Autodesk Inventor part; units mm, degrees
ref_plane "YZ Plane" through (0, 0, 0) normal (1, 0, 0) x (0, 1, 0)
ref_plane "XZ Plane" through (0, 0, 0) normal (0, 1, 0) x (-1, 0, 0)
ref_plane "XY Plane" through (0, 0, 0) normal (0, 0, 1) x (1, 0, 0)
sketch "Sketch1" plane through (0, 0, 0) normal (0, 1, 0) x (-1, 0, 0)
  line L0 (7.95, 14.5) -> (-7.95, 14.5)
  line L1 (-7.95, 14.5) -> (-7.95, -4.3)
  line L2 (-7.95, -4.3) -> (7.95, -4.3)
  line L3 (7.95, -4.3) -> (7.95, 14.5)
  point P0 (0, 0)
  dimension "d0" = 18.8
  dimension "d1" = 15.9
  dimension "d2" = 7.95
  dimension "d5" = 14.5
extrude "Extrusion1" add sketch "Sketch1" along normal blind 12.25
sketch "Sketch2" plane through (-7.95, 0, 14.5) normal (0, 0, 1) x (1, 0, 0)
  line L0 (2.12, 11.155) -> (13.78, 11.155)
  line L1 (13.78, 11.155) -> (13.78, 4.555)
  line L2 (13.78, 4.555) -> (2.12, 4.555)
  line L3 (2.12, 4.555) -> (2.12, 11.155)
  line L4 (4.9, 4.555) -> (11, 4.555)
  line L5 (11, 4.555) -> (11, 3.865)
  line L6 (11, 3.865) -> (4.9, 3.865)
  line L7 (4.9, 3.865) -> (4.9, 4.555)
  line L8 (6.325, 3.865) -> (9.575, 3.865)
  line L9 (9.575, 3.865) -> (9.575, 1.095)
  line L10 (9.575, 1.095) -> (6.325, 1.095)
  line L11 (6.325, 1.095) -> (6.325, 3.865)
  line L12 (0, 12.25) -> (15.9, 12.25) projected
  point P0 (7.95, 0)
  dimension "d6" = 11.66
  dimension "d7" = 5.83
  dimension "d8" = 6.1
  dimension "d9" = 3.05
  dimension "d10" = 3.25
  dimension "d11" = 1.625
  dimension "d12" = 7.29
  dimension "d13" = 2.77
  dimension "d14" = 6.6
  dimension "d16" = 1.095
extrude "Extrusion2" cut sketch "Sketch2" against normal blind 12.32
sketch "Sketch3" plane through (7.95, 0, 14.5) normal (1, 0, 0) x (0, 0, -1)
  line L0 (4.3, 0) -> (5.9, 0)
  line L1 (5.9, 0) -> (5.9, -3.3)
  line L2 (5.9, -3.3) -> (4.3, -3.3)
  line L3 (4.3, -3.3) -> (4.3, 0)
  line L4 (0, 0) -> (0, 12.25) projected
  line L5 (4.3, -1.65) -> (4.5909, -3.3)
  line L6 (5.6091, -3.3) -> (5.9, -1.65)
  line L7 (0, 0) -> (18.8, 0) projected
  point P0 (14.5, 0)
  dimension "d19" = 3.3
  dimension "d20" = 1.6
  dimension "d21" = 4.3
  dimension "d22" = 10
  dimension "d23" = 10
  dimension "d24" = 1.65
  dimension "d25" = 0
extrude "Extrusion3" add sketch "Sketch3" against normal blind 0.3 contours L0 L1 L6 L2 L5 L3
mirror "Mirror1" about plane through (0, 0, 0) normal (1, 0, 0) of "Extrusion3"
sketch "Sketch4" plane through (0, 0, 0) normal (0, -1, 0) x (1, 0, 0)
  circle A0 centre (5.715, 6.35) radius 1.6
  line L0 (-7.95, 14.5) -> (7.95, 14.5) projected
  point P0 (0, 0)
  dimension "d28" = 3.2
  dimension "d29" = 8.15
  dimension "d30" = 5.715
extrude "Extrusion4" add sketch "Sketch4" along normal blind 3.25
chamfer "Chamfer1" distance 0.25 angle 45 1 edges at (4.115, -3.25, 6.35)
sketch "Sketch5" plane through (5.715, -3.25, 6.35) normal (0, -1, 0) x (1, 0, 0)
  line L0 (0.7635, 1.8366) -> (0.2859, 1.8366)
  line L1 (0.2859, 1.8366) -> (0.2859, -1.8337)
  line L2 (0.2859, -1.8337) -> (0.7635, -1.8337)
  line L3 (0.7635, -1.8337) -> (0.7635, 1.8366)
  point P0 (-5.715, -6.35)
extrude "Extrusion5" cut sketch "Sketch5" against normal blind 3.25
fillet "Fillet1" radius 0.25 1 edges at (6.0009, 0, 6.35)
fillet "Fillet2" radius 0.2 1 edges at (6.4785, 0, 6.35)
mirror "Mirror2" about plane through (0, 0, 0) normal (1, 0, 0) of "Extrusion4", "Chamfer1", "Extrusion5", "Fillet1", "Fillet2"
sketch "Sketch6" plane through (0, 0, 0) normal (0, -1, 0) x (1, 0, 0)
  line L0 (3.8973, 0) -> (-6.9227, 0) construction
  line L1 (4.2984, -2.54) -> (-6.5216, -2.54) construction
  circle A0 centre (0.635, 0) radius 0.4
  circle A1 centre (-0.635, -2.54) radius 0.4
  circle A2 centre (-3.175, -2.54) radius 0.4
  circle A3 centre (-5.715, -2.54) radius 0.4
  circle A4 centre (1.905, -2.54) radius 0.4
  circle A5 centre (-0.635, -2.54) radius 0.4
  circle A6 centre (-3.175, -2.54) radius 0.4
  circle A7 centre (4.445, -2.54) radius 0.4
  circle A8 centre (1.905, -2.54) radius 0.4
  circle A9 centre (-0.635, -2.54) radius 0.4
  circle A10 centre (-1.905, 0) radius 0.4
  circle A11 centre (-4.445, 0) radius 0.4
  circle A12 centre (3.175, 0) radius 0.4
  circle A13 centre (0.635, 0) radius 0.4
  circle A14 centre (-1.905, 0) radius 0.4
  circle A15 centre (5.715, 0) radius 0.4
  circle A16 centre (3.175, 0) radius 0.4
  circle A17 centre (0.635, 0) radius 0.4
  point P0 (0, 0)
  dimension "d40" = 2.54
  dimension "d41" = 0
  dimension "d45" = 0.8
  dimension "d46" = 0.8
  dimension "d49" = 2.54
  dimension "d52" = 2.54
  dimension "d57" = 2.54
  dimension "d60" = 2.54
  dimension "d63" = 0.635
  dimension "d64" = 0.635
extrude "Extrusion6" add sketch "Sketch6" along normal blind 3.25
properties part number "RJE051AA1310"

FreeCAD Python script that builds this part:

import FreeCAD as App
import Part
import Sketcher


def edges_at(feature, points):
    """Names of the edges that pass closest to the given points."""
    edges = feature.Shape.Edges
    near = lambda p: min(range(len(edges)), key=lambda i: edges[i].distToShape(Part.Vertex(*p))[0])
    return sorted({f"Edge{near(p) + 1}" for p in points})


def add_polygon(sketch, points):
    """Adds a closed chain of lines whose ends are joined by coincident constraints."""
    first, n = sketch.GeometryCount, len(points)
    for a, b in zip(points, points[1:] + points[:1]):
        sketch.addGeometry(Part.LineSegment(App.Vector(*a, 0), App.Vector(*b, 0)), False)
    for i in range(n):
        sketch.addConstraint(Sketcher.Constraint("Coincident", first + i, 2, first + (i + 1) % n, 1))

doc = App.newDocument("Part")
body = doc.addObject("PartDesign::Body", "Body")

# Sketch on XZ plane
sketch1 = body.newObject("Sketcher::SketchObject", "Sketch")
sketch1.AttachmentSupport = (doc.getObject("XZ_Plane"), [""])
sketch1.MapMode = "FlatFace"
add_polygon(sketch1, [(-8, -4), (-8, 14), (8, 14), (8, -4)])  # lines 0-3
sketch1.addConstraint(Sketcher.Constraint("Vertical", 0))
sketch1.addConstraint(Sketcher.Constraint("Horizontal", 1))
sketch1.addConstraint(Sketcher.Constraint("Vertical", 2))
sketch1.addConstraint(Sketcher.Constraint("Horizontal", 3))
sketch1.addConstraint(Sketcher.Constraint("DistanceX", 1, 1, 1, 2, 15.9))
sketch1.addConstraint(Sketcher.Constraint("DistanceY", 0, 1, 0, 2, 18.8))
sketch1.addConstraint(Sketcher.Constraint("DistanceY", -1, 1, 0, 2, 14.5))
sketch1.addConstraint(Sketcher.Constraint("DistanceX", 0, 2, -1, 1, 7.95))
pad1 = body.newObject("PartDesign::Pad", "Pad")
pad1.Profile = sketch1
pad1.Length = 12.25
pad1.Reversed = True

# Sketch on XY plane
sketch2 = body.newObject("Sketcher::SketchObject", "Sketch001")
sketch2.AttachmentSupport = (doc.getObject("XY_Plane"), [""])
sketch2.MapMode = "FlatFace"
sketch2.AttachmentOffset = App.Placement(App.Vector(0, 0, 14.5), App.Rotation())
add_polygon(sketch2, [(5.8, 11.2), (-5.8, 11.2), (-5.8, 4.6), (-3, 4.6), (-3, 3.9), (-1.6, 3.9), (-1.6, 1.1), (1.6, 1.1), (1.6, 3.9), (3, 3.9), (3, 4.6), (5.8, 4.6)])  # lines 0-11
sketch2.addConstraint(Sketcher.Constraint("Horizontal", 0))
sketch2.addConstraint(Sketcher.Constraint("Vertical", 1))
sketch2.addConstraint(Sketcher.Constraint("Horizontal", 2))
sketch2.addConstraint(Sketcher.Constraint("Vertical", 3))
sketch2.addConstraint(Sketcher.Constraint("Horizontal", 4))
sketch2.addConstraint(Sketcher.Constraint("Vertical", 5))
sketch2.addConstraint(Sketcher.Constraint("Horizontal", 6))
sketch2.addConstraint(Sketcher.Constraint("Vertical", 7))
sketch2.addConstraint(Sketcher.Constraint("Horizontal", 8))
sketch2.addConstraint(Sketcher.Constraint("Vertical", 9))
sketch2.addConstraint(Sketcher.Constraint("Horizontal", 10))
sketch2.addConstraint(Sketcher.Constraint("Vertical", 11))
sketch2.addConstraint(Sketcher.Constraint("Symmetric", 4, 2, 7, 2, -2))
sketch2.addConstraint(Sketcher.Constraint("Symmetric", 2, 2, 9, 2, -2))
sketch2.addConstraint(Sketcher.Constraint("Equal", 2, 10))
sketch2.addConstraint(Sketcher.Constraint("DistanceY", 1, 2, 1, 1, 6.6))
sketch2.addConstraint(Sketcher.Constraint("DistanceX", 0, 2, 0, 1, 11.66))
sketch2.addConstraint(Sketcher.Constraint("DistanceX", 6, 1, 6, 2, 3.25))
sketch2.addConstraint(Sketcher.Constraint("DistanceY", 5, 2, 5, 1, 2.77))
sketch2.addConstraint(Sketcher.Constraint("DistanceX", 3, 2, 8, 2, 6.1))
sketch2.addConstraint(Sketcher.Constraint("DistanceY", 3, 2, 0, 2, 7.29))
sketch2.addConstraint(Sketcher.Constraint("DistanceY", -1, 1, 5, 2, 1.095))
pocket1 = body.newObject("PartDesign::Pocket", "Pocket")
pocket1.Profile = sketch2
pocket1.Length = 12.32

# Sketch on YZ plane
sketch3 = body.newObject("Sketcher::SketchObject", "Sketch002")
sketch3.AttachmentSupport = (doc.getObject("YZ_Plane"), [""])
sketch3.MapMode = "FlatFace"
sketch3.AttachmentOffset = App.Placement(App.Vector(0, 0, 7.95), App.Rotation())
add_polygon(sketch3, [(0, 8.6), (0, 10.2), (-1.6, 10.2), (-3.3, 9.9), (-3.3, 8.9), (-1.6, 8.6)])  # lines 0-5
sketch3.addConstraint(Sketcher.Constraint("Vertical", 0))
sketch3.addConstraint(Sketcher.Constraint("Horizontal", 1))
sketch3.addConstraint(Sketcher.Constraint("Vertical", 3))
sketch3.addConstraint(Sketcher.Constraint("Horizontal", 5))
sketch3.addConstraint(Sketcher.Constraint("PointOnObject", 0, 2, -2))
sketch3.addConstraint(Sketcher.Constraint("Vertical", 1, 2, 4, 2))
sketch3.addConstraint(Sketcher.Constraint("Equal", 2, 4))
sketch3.addConstraint(Sketcher.Constraint("DistanceY", 0, 1, 0, 2, 1.6))
sketch3.addConstraint(Sketcher.Constraint("DistanceX", 1, 2, 1, 1, 1.65))
sketch3.addConstraint(Sketcher.Constraint("DistanceX", 2, 2, -1, 1, 3.3))
sketch3.addConstraint(Sketcher.Constraint("DistanceY", -1, 1, 0, 2, 10.2))
sketch3.addConstraint(Sketcher.Constraint("DistanceY", 3, 2, 3, 1, 1.0182))
pad2 = body.newObject("PartDesign::Pad", "Pad001")
pad2.Profile = sketch3
pad2.Length = 0.3
pad2.Reversed = True
doc.recompute()

mirrored = body.newObject("PartDesign::Mirrored", "Mirrored")
mirrored.Originals = [pad2]
mirrored.MirrorPlane = (doc.getObject("YZ_Plane"), [""])
body.Tip = mirrored

# Sketch on XZ plane
sketch4 = body.newObject("Sketcher::SketchObject", "Sketch003")
sketch4.AttachmentSupport = (doc.getObject("XZ_Plane"), [""])
sketch4.MapMode = "FlatFace"
sketch4.addGeometry(Part.Circle(App.Vector(5.7, 6.3, 0), App.Vector(0, 0, 1), 1.6), False)
sketch4.addConstraint(Sketcher.Constraint("Diameter", 0, 3.2))
sketch4.addConstraint(Sketcher.Constraint("DistanceX", -1, 1, 0, 3, 5.715))
sketch4.addConstraint(Sketcher.Constraint("DistanceY", -1, 1, 0, 3, 6.35))
pad3 = body.newObject("PartDesign::Pad", "Pad002")
pad3.Profile = sketch4
pad3.Length = 3.25
doc.recompute()

chamfer = body.newObject("PartDesign::Chamfer", "Chamfer")
chamfer.Base = (pad3, edges_at(pad3, [(4.115, -3.25, 6.35)]))
chamfer.Size = 0.25

# Sketch on XZ plane
sketch5 = body.newObject("Sketcher::SketchObject", "Sketch004")
sketch5.AttachmentSupport = (doc.getObject("XZ_Plane"), [""])
sketch5.MapMode = "FlatFace"
sketch5.AttachmentOffset = App.Placement(App.Vector(0, 0, 3.25), App.Rotation())
add_polygon(sketch5, [(6.48, 4.52), (6.48, 8.19), (6, 8.19), (6, 4.52)])  # lines 0-3
sketch5.addConstraint(Sketcher.Constraint("Vertical", 0))
sketch5.addConstraint(Sketcher.Constraint("Horizontal", 1))
sketch5.addConstraint(Sketcher.Constraint("Vertical", 2))
sketch5.addConstraint(Sketcher.Constraint("Horizontal", 3))
sketch5.addConstraint(Sketcher.Constraint("DistanceX", 1, 2, 1, 1, 0.4776))
sketch5.addConstraint(Sketcher.Constraint("DistanceY", 0, 1, 0, 2, 3.6703))
sketch5.addConstraint(Sketcher.Constraint("DistanceX", -1, 1, 1, 2, 6.001))
sketch5.addConstraint(Sketcher.Constraint("DistanceY", -1, 1, 0, 2, 8.1866))
pocket2 = body.newObject("PartDesign::Pocket", "Pocket001")
pocket2.Profile = sketch5
pocket2.Length = 3.25
doc.recompute()

fillet = body.newObject("PartDesign::Fillet", "Fillet")
fillet.Base = (pocket2, edges_at(pocket2, [(6.001, 0, 6.35)]))
fillet.Radius = 0.25
doc.recompute()

fillet2 = body.newObject("PartDesign::Fillet", "Fillet001")
fillet2.Base = (fillet, edges_at(fillet, [(6.479, 0, 6.35)]))
fillet2.Radius = 0.2
doc.recompute()

mirrored2 = body.newObject("PartDesign::Mirrored", "Mirrored001")
mirrored2.Originals = [pad3, chamfer, pocket2, fillet, fillet2]
mirrored2.MirrorPlane = (doc.getObject("YZ_Plane"), [""])
body.Tip = mirrored2

# Sketch on XZ plane
sketch6 = body.newObject("Sketcher::SketchObject", "Sketch005")
sketch6.AttachmentSupport = (doc.getObject("XZ_Plane"), [""])
sketch6.MapMode = "FlatFace"
sketch6.addGeometry(Part.Circle(App.Vector(0.64, 0, 0), App.Vector(0, 0, 1), 0.4), False)
sketch6.addGeometry(Part.Circle(App.Vector(-0.64, -2.54, 0), App.Vector(0, 0, 1), 0.4), False)
sketch6.addGeometry(Part.Circle(App.Vector(-3.17, -2.54, 0), App.Vector(0, 0, 1), 0.4), False)
sketch6.addGeometry(Part.Circle(App.Vector(-5.71, -2.54, 0), App.Vector(0, 0, 1), 0.4), False)
sketch6.addGeometry(Part.Circle(App.Vector(1.91, -2.54, 0), App.Vector(0, 0, 1), 0.4), False)
sketch6.addGeometry(Part.Circle(App.Vector(4.45, -2.54, 0), App.Vector(0, 0, 1), 0.4), False)
sketch6.addGeometry(Part.Circle(App.Vector(-1.91, 0, 0), App.Vector(0, 0, 1), 0.4), False)
sketch6.addGeometry(Part.Circle(App.Vector(-4.45, 0, 0), App.Vector(0, 0, 1), 0.4), False)
sketch6.addGeometry(Part.Circle(App.Vector(3.17, 0, 0), App.Vector(0, 0, 1), 0.4), False)
sketch6.addGeometry(Part.Circle(App.Vector(5.71, 0, 0), App.Vector(0, 0, 1), 0.4), False)
sketch6.addConstraint(Sketcher.Constraint("Equal", 0, 1))
sketch6.addConstraint(Sketcher.Constraint("Equal", 1, 2))
sketch6.addConstraint(Sketcher.Constraint("Equal", 2, 3))
sketch6.addConstraint(Sketcher.Constraint("Equal", 3, 4))
sketch6.addConstraint(Sketcher.Constraint("Equal", 4, 5))
sketch6.addConstraint(Sketcher.Constraint("Equal", 5, 6))
sketch6.addConstraint(Sketcher.Constraint("Equal", 6, 7))
sketch6.addConstraint(Sketcher.Constraint("Equal", 7, 8))
sketch6.addConstraint(Sketcher.Constraint("Equal", 8, 9))
sketch6.addConstraint(Sketcher.Constraint("PointOnObject", 0, 3, -1))
sketch6.addConstraint(Sketcher.Constraint("PointOnObject", 6, 3, -1))
sketch6.addConstraint(Sketcher.Constraint("PointOnObject", 7, 3, -1))
sketch6.addConstraint(Sketcher.Constraint("PointOnObject", 8, 3, -1))
sketch6.addConstraint(Sketcher.Constraint("PointOnObject", 9, 3, -1))
sketch6.addConstraint(Sketcher.Constraint("Horizontal", 1, 3, 2, 3))
sketch6.addConstraint(Sketcher.Constraint("Horizontal", 2, 3, 3, 3))
sketch6.addConstraint(Sketcher.Constraint("Horizontal", 3, 3, 4, 3))
sketch6.addConstraint(Sketcher.Constraint("Horizontal", 4, 3, 5, 3))
sketch6.addConstraint(Sketcher.Constraint("Diameter", 0, 0.8))
sketch6.addConstraint(Sketcher.Constraint("DistanceY", 1, 3, -1, 1, 2.54))
sketch6.addConstraint(Sketcher.Constraint("DistanceX", 2, 3, 1, 3, 2.54))
sketch6.addConstraint(Sketcher.Constraint("DistanceX", 3, 3, 2, 3, 2.54))
sketch6.addConstraint(Sketcher.Constraint("DistanceX", 1, 3, 4, 3, 2.54))
sketch6.addConstraint(Sketcher.Constraint("DistanceX", 4, 3, 5, 3, 2.54))
sketch6.addConstraint(Sketcher.Constraint("DistanceX", 6, 3, 0, 3, 2.54))
sketch6.addConstraint(Sketcher.Constraint("DistanceX", 7, 3, 6, 3, 2.54))
sketch6.addConstraint(Sketcher.Constraint("DistanceX", 0, 3, 8, 3, 2.54))
sketch6.addConstraint(Sketcher.Constraint("DistanceX", 8, 3, 9, 3, 2.54))
sketch6.addConstraint(Sketcher.Constraint("DistanceX", -1, 1, 0, 3, 0.635))
sketch6.addConstraint(Sketcher.Constraint("DistanceX", 1, 3, -1, 1, 0.635))
pad4 = body.newObject("PartDesign::Pad", "Pad003")
pad4.Profile = sketch6
pad4.Length = 3.25

doc.recompute()
